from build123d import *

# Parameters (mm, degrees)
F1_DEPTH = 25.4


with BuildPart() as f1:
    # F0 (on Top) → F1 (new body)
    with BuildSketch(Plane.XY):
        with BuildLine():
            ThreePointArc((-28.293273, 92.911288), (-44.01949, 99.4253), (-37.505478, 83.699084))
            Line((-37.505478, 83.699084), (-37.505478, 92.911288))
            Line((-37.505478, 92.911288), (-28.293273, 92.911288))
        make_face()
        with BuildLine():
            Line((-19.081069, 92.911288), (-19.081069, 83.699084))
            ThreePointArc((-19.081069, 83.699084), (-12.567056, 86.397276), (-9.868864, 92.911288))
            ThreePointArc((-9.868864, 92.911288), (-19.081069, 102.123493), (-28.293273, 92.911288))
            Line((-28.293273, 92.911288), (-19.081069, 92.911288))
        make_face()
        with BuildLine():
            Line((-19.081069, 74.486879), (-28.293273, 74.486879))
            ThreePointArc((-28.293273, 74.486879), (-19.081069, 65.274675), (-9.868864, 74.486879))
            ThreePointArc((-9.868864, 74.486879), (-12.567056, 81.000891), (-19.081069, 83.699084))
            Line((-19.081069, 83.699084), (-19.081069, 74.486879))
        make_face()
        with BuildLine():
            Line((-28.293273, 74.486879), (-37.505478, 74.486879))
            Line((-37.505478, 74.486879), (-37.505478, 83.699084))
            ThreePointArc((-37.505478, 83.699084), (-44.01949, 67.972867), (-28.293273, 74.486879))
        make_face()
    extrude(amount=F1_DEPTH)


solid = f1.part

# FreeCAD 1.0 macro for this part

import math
import FreeCAD as App
import Part
import Sketcher
from FreeCAD import Vector
Q = App.Units.Quantity

doc = App.newDocument("Part")
body = doc.addObject("PartDesign::Body", "Body")
body.AllowCompound = True

# Sketch on XY plane
sketch1 = body.newObject("Sketcher::SketchObject", "Sketch")
sketch1.AttachmentSupport = (doc.getObject("XY_Plane"), [""])
sketch1.MapMode = "FlatFace"
sketch1.addGeometry([
    Part.ArcOfCircle(Part.Circle(Vector(-38, 93, 0), Vector(0, 0, 1), 9), math.radians(0), math.radians(270)),  # 0
    Part.LineSegment(Vector(-38, 84, 0), Vector(-38, 93, 0)),  # 1
    Part.LineSegment(Vector(-38, 93, 0), Vector(-28, 93, 0)),  # 2
    Part.LineSegment(Vector(-19, 93, 0), Vector(-19, 84, 0)),  # 3
    Part.ArcOfCircle(Part.Circle(Vector(-19, 93, 0), Vector(0, 0, 1), 9), math.radians(-90), math.radians(0)),  # 4
    Part.ArcOfCircle(Part.Circle(Vector(-19, 93, 0), Vector(0, 0, 1), 9), math.radians(0), math.radians(180)),  # 5
    Part.LineSegment(Vector(-28, 93, 0), Vector(-19, 93, 0)),  # 6
    Part.LineSegment(Vector(-19, 74, 0), Vector(-28, 74, 0)),  # 7
    Part.ArcOfCircle(Part.Circle(Vector(-19, 74, 0), Vector(0, 0, 1), 9), math.radians(-180), math.radians(0)),  # 8
    Part.ArcOfCircle(Part.Circle(Vector(-19, 74, 0), Vector(0, 0, 1), 9), math.radians(0), math.radians(90)),  # 9
    Part.LineSegment(Vector(-19, 84, 0), Vector(-19, 74, 0)),  # 10
    Part.LineSegment(Vector(-28, 74, 0), Vector(-38, 74, 0)),  # 11
    Part.LineSegment(Vector(-38, 74, 0), Vector(-38, 84, 0)),  # 12
    Part.ArcOfCircle(Part.Circle(Vector(-38, 74, 0), Vector(0, 0, 1), 9), math.radians(90), math.radians(360)),  # 13
], False)
sketch1.addConstraint([
    Sketcher.Constraint("Coincident", 0, 2, 1, 1),
    Sketcher.Constraint("Coincident", 1, 2, 2, 1),
    Sketcher.Constraint("Coincident", 2, 2, 0, 1),
    Sketcher.Constraint("Coincident", 3, 2, 4, 1),
    Sketcher.Constraint("Tangent", 4, 2, 5, 1),
    Sketcher.Constraint("Coincident", 5, 2, 6, 1),
    Sketcher.Constraint("Coincident", 6, 2, 3, 1),
    Sketcher.Constraint("Coincident", 7, 2, 8, 1),
    Sketcher.Constraint("Tangent", 8, 2, 9, 1),
    Sketcher.Constraint("Coincident", 9, 2, 10, 1),
    Sketcher.Constraint("Coincident", 10, 2, 7, 1),
    Sketcher.Constraint("Coincident", 11, 2, 12, 1),
    Sketcher.Constraint("Coincident", 12, 2, 13, 1),
    Sketcher.Constraint("Coincident", 13, 2, 11, 1),
    Sketcher.Constraint("Vertical", 1),
    Sketcher.Constraint("Horizontal", 2),
    Sketcher.Constraint("Vertical", 3),
    Sketcher.Constraint("Horizontal", 6),
    Sketcher.Constraint("Horizontal", 7),
    Sketcher.Constraint("Vertical", 10),
    Sketcher.Constraint("Horizontal", 11),
    Sketcher.Constraint("Vertical", 12),
    Sketcher.Constraint("Coincident", 1, 2, 0, 3),
    Sketcher.Constraint("Coincident", 5, 2, 2, 2),
    Sketcher.Constraint("Coincident", 6, 2, 4, 3),
    Sketcher.Constraint("Coincident", 9, 2, 3, 2),
    Sketcher.Constraint("Coincident", 10, 2, 8, 3),
    Sketcher.Constraint("Coincident", 11, 2, 13, 3),
    Sketcher.Constraint("Coincident", 12, 2, 0, 2),
    Sketcher.Constraint("Coincident", 13, 2, 7, 2),
    Sketcher.Constraint("Equal", 0, 4),
    Sketcher.Constraint("Equal", 4, 5),
    Sketcher.Constraint("Equal", 5, 8),
    Sketcher.Constraint("Horizontal", 2, 2, 4, 2),
    Sketcher.Constraint("Horizontal", 7, 2, 8, 2),
    Sketcher.Constraint("Radius", 0, 9.212204),
    Sketcher.Constraint("DistanceY", -1, 1, 0, 3, 92.911288),
    Sketcher.Constraint("DistanceX", 5, 3, -1, 1, 19.081069),
])
pad1 = body.newObject("PartDesign::Pad", "Pad")
pad1.Profile = sketch1
pad1.Length = Q("1 in")

doc.recompute()
